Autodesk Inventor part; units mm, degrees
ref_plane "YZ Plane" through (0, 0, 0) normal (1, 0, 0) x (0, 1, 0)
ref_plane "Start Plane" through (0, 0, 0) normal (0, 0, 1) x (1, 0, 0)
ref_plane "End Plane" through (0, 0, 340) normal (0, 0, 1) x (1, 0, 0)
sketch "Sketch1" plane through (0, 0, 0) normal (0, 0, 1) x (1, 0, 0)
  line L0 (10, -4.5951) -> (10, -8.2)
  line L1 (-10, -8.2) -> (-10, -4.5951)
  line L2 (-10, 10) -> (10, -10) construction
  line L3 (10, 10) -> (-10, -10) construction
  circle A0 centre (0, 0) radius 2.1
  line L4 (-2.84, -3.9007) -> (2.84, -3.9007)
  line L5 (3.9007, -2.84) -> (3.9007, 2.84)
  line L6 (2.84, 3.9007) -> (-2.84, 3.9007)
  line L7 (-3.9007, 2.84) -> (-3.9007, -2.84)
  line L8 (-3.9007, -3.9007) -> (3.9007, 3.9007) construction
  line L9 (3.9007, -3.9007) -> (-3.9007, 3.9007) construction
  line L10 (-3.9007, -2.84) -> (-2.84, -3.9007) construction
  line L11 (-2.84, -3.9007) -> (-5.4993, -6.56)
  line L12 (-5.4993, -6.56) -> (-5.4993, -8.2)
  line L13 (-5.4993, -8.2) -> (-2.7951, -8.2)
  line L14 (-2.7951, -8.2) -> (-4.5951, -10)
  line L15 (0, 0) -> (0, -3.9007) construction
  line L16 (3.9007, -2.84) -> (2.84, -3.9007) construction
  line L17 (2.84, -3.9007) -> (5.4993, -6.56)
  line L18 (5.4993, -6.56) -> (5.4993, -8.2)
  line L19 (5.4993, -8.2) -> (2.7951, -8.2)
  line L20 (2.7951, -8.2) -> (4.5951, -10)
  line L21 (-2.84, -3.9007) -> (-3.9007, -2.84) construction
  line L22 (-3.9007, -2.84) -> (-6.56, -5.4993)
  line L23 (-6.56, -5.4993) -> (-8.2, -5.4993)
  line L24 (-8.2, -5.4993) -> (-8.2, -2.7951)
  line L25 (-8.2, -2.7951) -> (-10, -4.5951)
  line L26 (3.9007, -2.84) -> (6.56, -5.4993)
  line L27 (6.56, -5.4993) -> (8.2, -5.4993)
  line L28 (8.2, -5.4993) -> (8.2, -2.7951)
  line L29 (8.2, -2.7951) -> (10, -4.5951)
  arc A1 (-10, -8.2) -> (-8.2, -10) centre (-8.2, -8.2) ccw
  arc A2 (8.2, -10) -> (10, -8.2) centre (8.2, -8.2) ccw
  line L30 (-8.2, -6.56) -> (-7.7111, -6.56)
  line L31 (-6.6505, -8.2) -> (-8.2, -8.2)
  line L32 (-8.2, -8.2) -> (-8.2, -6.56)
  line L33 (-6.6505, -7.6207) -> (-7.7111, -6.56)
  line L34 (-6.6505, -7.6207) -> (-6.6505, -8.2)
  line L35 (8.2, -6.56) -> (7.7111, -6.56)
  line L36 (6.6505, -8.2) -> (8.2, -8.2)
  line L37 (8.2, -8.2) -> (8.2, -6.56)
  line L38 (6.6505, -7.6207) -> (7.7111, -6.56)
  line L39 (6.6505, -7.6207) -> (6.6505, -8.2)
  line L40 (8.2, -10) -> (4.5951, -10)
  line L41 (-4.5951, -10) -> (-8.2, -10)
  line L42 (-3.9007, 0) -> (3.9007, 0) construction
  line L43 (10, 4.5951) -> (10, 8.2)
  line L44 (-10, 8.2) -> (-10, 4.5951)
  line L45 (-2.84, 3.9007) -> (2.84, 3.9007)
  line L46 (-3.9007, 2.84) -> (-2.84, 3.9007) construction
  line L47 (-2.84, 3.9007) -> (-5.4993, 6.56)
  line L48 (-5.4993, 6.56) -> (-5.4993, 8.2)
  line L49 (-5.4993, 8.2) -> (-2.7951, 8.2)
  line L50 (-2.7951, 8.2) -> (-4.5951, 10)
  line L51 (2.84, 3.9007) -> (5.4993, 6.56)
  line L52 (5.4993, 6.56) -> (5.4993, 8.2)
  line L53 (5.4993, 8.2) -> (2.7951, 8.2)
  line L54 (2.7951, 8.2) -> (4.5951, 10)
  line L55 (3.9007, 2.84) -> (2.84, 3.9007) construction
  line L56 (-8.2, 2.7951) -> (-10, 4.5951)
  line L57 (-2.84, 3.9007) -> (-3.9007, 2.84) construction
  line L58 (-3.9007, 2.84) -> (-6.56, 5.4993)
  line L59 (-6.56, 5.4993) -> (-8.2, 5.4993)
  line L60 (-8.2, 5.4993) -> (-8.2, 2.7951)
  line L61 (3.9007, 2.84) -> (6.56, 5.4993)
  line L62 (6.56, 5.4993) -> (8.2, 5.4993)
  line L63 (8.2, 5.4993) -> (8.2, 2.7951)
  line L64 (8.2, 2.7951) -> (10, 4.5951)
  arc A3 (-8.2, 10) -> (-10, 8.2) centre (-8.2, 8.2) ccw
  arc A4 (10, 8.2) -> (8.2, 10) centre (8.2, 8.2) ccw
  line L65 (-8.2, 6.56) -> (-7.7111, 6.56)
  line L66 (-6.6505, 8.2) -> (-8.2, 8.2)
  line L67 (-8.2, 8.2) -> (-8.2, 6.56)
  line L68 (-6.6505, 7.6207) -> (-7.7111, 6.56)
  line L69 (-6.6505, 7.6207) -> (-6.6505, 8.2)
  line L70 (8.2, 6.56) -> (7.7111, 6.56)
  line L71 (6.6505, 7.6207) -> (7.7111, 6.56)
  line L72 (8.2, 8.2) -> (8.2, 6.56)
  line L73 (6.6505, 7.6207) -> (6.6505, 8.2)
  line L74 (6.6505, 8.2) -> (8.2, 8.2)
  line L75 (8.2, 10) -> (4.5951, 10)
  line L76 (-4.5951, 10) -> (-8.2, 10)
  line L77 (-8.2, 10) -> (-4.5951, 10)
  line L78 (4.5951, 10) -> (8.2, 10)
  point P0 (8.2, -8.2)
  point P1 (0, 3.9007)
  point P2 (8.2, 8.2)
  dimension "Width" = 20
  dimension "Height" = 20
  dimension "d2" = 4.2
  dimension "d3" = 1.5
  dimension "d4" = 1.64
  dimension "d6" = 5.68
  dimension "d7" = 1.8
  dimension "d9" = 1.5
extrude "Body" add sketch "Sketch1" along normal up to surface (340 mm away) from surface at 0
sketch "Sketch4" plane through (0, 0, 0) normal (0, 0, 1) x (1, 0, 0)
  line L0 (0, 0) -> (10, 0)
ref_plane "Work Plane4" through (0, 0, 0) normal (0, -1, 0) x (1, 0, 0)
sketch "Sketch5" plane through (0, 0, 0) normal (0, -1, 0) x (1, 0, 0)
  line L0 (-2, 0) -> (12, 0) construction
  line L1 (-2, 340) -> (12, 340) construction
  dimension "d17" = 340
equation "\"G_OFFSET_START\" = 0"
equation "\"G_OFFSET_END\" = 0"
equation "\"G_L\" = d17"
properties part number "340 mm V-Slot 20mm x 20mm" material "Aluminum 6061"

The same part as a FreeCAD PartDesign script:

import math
import FreeCAD as App
import Part
import Sketcher

V = App.Vector
Q = App.Units.Quantity

doc = App.newDocument("Part")
body = doc.addObject("PartDesign::Body", "Body")

# Sketch on XY plane
sketch1 = body.newObject("Sketcher::SketchObject", "Sketch")
sketch1.AttachmentSupport = (doc.getObject("XY_Plane"), [""])
sketch1.MapMode = "FlatFace"
sketch1.addGeometry(Part.LineSegment(V(10, -8.2, 0), V(10, -4.5951, 0)), False)
sketch1.addGeometry(Part.LineSegment(V(10, -4.5951, 0), V(8.2, -2.7951, 0)), False)
sketch1.addGeometry(Part.LineSegment(V(8.2, -2.7951, 0), V(8.2, -5.4993, 0)), False)
sketch1.addGeometry(Part.LineSegment(V(8.2, -5.4993, 0), V(6.56, -5.4993, 0)), False)
sketch1.addGeometry(Part.LineSegment(V(6.56, -5.4993, 0), V(3.9007, -2.84, 0)), False)
sketch1.addGeometry(Part.LineSegment(V(3.9007, -2.84, 0), V(3.9007, 2.84, 0)), False)
sketch1.addGeometry(Part.LineSegment(V(3.9007, 2.84, 0), V(6.56, 5.4993, 0)), False)
sketch1.addGeometry(Part.LineSegment(V(6.56, 5.4993, 0), V(8.2, 5.4993, 0)), False)
sketch1.addGeometry(Part.LineSegment(V(8.2, 5.4993, 0), V(8.2, 2.7951, 0)), False)
sketch1.addGeometry(Part.LineSegment(V(8.2, 2.7951, 0), V(10, 4.5951, 0)), False)
sketch1.addGeometry(Part.LineSegment(V(10, 4.5951, 0), V(10, 8.2, 0)), False)
sketch1.addGeometry(Part.ArcOfCircle(Part.Circle(V(8.2, 8.2, 0), V(0, 0, 1), 1.8), math.radians(0), math.radians(90)), False)
sketch1.addGeometry(Part.LineSegment(V(8.2, 10, 0), V(4.5951, 10, 0)), False)
sketch1.addGeometry(Part.LineSegment(V(4.5951, 10, 0), V(2.7951, 8.2, 0)), False)
sketch1.addGeometry(Part.LineSegment(V(2.7951, 8.2, 0), V(5.4993, 8.2, 0)), False)
sketch1.addGeometry(Part.LineSegment(V(5.4993, 8.2, 0), V(5.4993, 6.56, 0)), False)
sketch1.addGeometry(Part.LineSegment(V(5.4993, 6.56, 0), V(2.84, 3.9007, 0)), False)
sketch1.addGeometry(Part.LineSegment(V(2.84, 3.9007, 0), V(-2.84, 3.9007, 0)), False)
sketch1.addGeometry(Part.LineSegment(V(-2.84, 3.9007, 0), V(-5.4993, 6.56, 0)), False)
sketch1.addGeometry(Part.LineSegment(V(-5.4993, 6.56, 0), V(-5.4993, 8.2, 0)), False)
sketch1.addGeometry(Part.LineSegment(V(-5.4993, 8.2, 0), V(-2.7951, 8.2, 0)), False)
sketch1.addGeometry(Part.LineSegment(V(-2.7951, 8.2, 0), V(-4.5951, 10, 0)), False)
sketch1.addGeometry(Part.LineSegment(V(-4.5951, 10, 0), V(-8.2, 10, 0)), False)
sketch1.addGeometry(Part.ArcOfCircle(Part.Circle(V(-8.2, 8.2, 0), V(0, 0, 1), 1.8), math.radians(90), math.radians(180)), False)
sketch1.addGeometry(Part.LineSegment(V(-10, 8.2, 0), V(-10, 4.5951, 0)), False)
sketch1.addGeometry(Part.LineSegment(V(-10, 4.5951, 0), V(-8.2, 2.7951, 0)), False)
sketch1.addGeometry(Part.LineSegment(V(-8.2, 2.7951, 0), V(-8.2, 5.4993, 0)), False)
sketch1.addGeometry(Part.LineSegment(V(-8.2, 5.4993, 0), V(-6.56, 5.4993, 0)), False)
sketch1.addGeometry(Part.LineSegment(V(-6.56, 5.4993, 0), V(-3.9007, 2.84, 0)), False)
sketch1.addGeometry(Part.LineSegment(V(-3.9007, 2.84, 0), V(-3.9007, -2.84, 0)), False)
sketch1.addGeometry(Part.LineSegment(V(-3.9007, -2.84, 0), V(-6.56, -5.4993, 0)), False)
sketch1.addGeometry(Part.LineSegment(V(-6.56, -5.4993, 0), V(-8.2, -5.4993, 0)), False)
sketch1.addGeometry(Part.LineSegment(V(-8.2, -5.4993, 0), V(-8.2, -2.7951, 0)), False)
sketch1.addGeometry(Part.LineSegment(V(-8.2, -2.7951, 0), V(-10, -4.5951, 0)), False)
sketch1.addGeometry(Part.LineSegment(V(-10, -4.5951, 0), V(-10, -8.2, 0)), False)
sketch1.addGeometry(Part.ArcOfCircle(Part.Circle(V(-8.2, -8.2, 0), V(0, 0, 1), 1.8), math.radians(180), math.radians(270)), False)
sketch1.addGeometry(Part.LineSegment(V(-8.2, -10, 0), V(-4.5951, -10, 0)), False)
sketch1.addGeometry(Part.LineSegment(V(-4.5951, -10, 0), V(-2.7951, -8.2, 0)), False)
sketch1.addGeometry(Part.LineSegment(V(-2.7951, -8.2, 0), V(-5.4993, -8.2, 0)), False)
sketch1.addGeometry(Part.LineSegment(V(-5.4993, -8.2, 0), V(-5.4993, -6.56, 0)), False)
sketch1.addGeometry(Part.LineSegment(V(-5.4993, -6.56, 0), V(-2.84, -3.9007, 0)), False)
sketch1.addGeometry(Part.LineSegment(V(-2.84, -3.9007, 0), V(2.84, -3.9007, 0)), False)
sketch1.addGeometry(Part.LineSegment(V(2.84, -3.9007, 0), V(5.4993, -6.56, 0)), False)
sketch1.addGeometry(Part.LineSegment(V(5.4993, -6.56, 0), V(5.4993, -8.2, 0)), False)
sketch1.addGeometry(Part.LineSegment(V(5.4993, -8.2, 0), V(2.7951, -8.2, 0)), False)
sketch1.addGeometry(Part.LineSegment(V(2.7951, -8.2, 0), V(4.5951, -10, 0)), False)
sketch1.addGeometry(Part.LineSegment(V(4.5951, -10, 0), V(8.2, -10, 0)), False)
sketch1.addGeometry(Part.ArcOfCircle(Part.Circle(V(8.2, -8.2, 0), V(0, 0, 1), 1.8), math.radians(-90), math.radians(0)), False)
sketch1.addGeometry(Part.LineSegment(V(-8.2, -8.2, 0), V(-8.2, -6.56, 0)), False)
sketch1.addGeometry(Part.LineSegment(V(-8.2, -6.56, 0), V(-7.7111, -6.56, 0)), False)
sketch1.addGeometry(Part.LineSegment(V(-7.7111, -6.56, 0), V(-6.6505, -7.6207, 0)), False)
sketch1.addGeometry(Part.LineSegment(V(-6.6505, -7.6207, 0), V(-6.6505, -8.2, 0)), False)
sketch1.addGeometry(Part.LineSegment(V(-6.6505, -8.2, 0), V(-8.2, -8.2, 0)), False)
sketch1.addGeometry(Part.LineSegment(V(7.7111, -6.56, 0), V(8.2, -6.56, 0)), False)
sketch1.addGeometry(Part.LineSegment(V(8.2, -6.56, 0), V(8.2, -8.2, 0)), False)
sketch1.addGeometry(Part.LineSegment(V(8.2, -8.2, 0), V(6.6505, -8.2, 0)), False)
sketch1.addGeometry(Part.LineSegment(V(6.6505, -8.2, 0), V(6.6505, -7.6207, 0)), False)
sketch1.addGeometry(Part.LineSegment(V(6.6505, -7.6207, 0), V(7.7111, -6.56, 0)), False)
sketch1.addGeometry(Part.LineSegment(V(-7.7111, 6.56, 0), V(-8.2, 6.56, 0)), False)
sketch1.addGeometry(Part.LineSegment(V(-8.2, 6.56, 0), V(-8.2, 8.2, 0)), False)
sketch1.addGeometry(Part.LineSegment(V(-8.2, 8.2, 0), V(-6.6505, 8.2, 0)), False)
sketch1.addGeometry(Part.LineSegment(V(-6.6505, 8.2, 0), V(-6.6505, 7.6207, 0)), False)
sketch1.addGeometry(Part.LineSegment(V(-6.6505, 7.6207, 0), V(-7.7111, 6.56, 0)), False)
sketch1.addGeometry(Part.Circle(V(0, 0, 0), V(0, 0, 1), 2.1), False)
sketch1.addGeometry(Part.LineSegment(V(8.2, 8.2, 0), V(8.2, 6.56, 0)), False)
sketch1.addGeometry(Part.LineSegment(V(8.2, 6.56, 0), V(7.7111, 6.56, 0)), False)
sketch1.addGeometry(Part.LineSegment(V(7.7111, 6.56, 0), V(6.6505, 7.6207, 0)), False)
sketch1.addGeometry(Part.LineSegment(V(6.6505, 7.6207, 0), V(6.6505, 8.2, 0)), False)
sketch1.addGeometry(Part.LineSegment(V(6.6505, 8.2, 0), V(8.2, 8.2, 0)), False)
sketch1.addConstraint(Sketcher.Constraint("Coincident", 0, 2, 1, 1))
sketch1.addConstraint(Sketcher.Constraint("Coincident", 1, 2, 2, 1))
sketch1.addConstraint(Sketcher.Constraint("Coincident", 2, 2, 3, 1))
sketch1.addConstraint(Sketcher.Constraint("Coincident", 3, 2, 4, 1))
sketch1.addConstraint(Sketcher.Constraint("Coincident", 4, 2, 5, 1))
sketch1.addConstraint(Sketcher.Constraint("Coincident", 5, 2, 6, 1))
sketch1.addConstraint(Sketcher.Constraint("Coincident", 6, 2, 7, 1))
sketch1.addConstraint(Sketcher.Constraint("Coincident", 7, 2, 8, 1))
sketch1.addConstraint(Sketcher.Constraint("Coincident", 8, 2, 9, 1))
sketch1.addConstraint(Sketcher.Constraint("Coincident", 9, 2, 10, 1))
sketch1.addConstraint(Sketcher.Constraint("Tangent", 10, 2, 11, 1))
sketch1.addConstraint(Sketcher.Constraint("Tangent", 11, 2, 12, 1))
sketch1.addConstraint(Sketcher.Constraint("Coincident", 12, 2, 13, 1))
sketch1.addConstraint(Sketcher.Constraint("Coincident", 13, 2, 14, 1))
sketch1.addConstraint(Sketcher.Constraint("Coincident", 14, 2, 15, 1))
sketch1.addConstraint(Sketcher.Constraint("Coincident", 15, 2, 16, 1))
sketch1.addConstraint(Sketcher.Constraint("Coincident", 16, 2, 17, 1))
sketch1.addConstraint(Sketcher.Constraint("Coincident", 17, 2, 18, 1))
sketch1.addConstraint(Sketcher.Constraint("Coincident", 18, 2, 19, 1))
sketch1.addConstraint(Sketcher.Constraint("Coincident", 19, 2, 20, 1))
sketch1.addConstraint(Sketcher.Constraint("Coincident", 20, 2, 21, 1))
sketch1.addConstraint(Sketcher.Constraint("Coincident", 21, 2, 22, 1))
sketch1.addConstraint(Sketcher.Constraint("Tangent", 22, 2, 23, 1))
sketch1.addConstraint(Sketcher.Constraint("Tangent", 23, 2, 24, 1))
sketch1.addConstraint(Sketcher.Constraint("Coincident", 24, 2, 25, 1))
sketch1.addConstraint(Sketcher.Constraint("Coincident", 25, 2, 26, 1))
sketch1.addConstraint(Sketcher.Constraint("Coincident", 26, 2, 27, 1))
sketch1.addConstraint(Sketcher.Constraint("Coincident", 27, 2, 28, 1))
sketch1.addConstraint(Sketcher.Constraint("Coincident", 28, 2, 29, 1))
sketch1.addConstraint(Sketcher.Constraint("Coincident", 29, 2, 30, 1))
sketch1.addConstraint(Sketcher.Constraint("Coincident", 30, 2, 31, 1))
sketch1.addConstraint(Sketcher.Constraint("Coincident", 31, 2, 32, 1))
sketch1.addConstraint(Sketcher.Constraint("Coincident", 32, 2, 33, 1))
sketch1.addConstraint(Sketcher.Constraint("Coincident", 33, 2, 34, 1))
sketch1.addConstraint(Sketcher.Constraint("Tangent", 34, 2, 35, 1))
sketch1.addConstraint(Sketcher.Constraint("Tangent", 35, 2, 36, 1))
sketch1.addConstraint(Sketcher.Constraint("Coincident", 36, 2, 37, 1))
sketch1.addConstraint(Sketcher.Constraint("Coincident", 37, 2, 38, 1))
sketch1.addConstraint(Sketcher.Constraint("Coincident", 38, 2, 39, 1))
sketch1.addConstraint(Sketcher.Constraint("Coincident", 39, 2, 40, 1))
sketch1.addConstraint(Sketcher.Constraint("Coincident", 40, 2, 41, 1))
sketch1.addConstraint(Sketcher.Constraint("Coincident", 41, 2, 42, 1))
sketch1.addConstraint(Sketcher.Constraint("Coincident", 42, 2, 43, 1))
sketch1.addConstraint(Sketcher.Constraint("Coincident", 43, 2, 44, 1))
sketch1.addConstraint(Sketcher.Constraint("Coincident", 44, 2, 45, 1))
sketch1.addConstraint(Sketcher.Constraint("Coincident", 45, 2, 46, 1))
sketch1.addConstraint(Sketcher.Constraint("Tangent", 46, 2, 47, 1))
sketch1.addConstraint(Sketcher.Constraint("Tangent", 47, 2, 0, 1))
sketch1.addConstraint(Sketcher.Constraint("Coincident", 48, 2, 49, 1))
sketch1.addConstraint(Sketcher.Constraint("Coincident", 49, 2, 50, 1))
sketch1.addConstraint(Sketcher.Constraint("Coincident", 50, 2, 51, 1))
sketch1.addConstraint(Sketcher.Constraint("Coincident", 51, 2, 52, 1))
sketch1.addConstraint(Sketcher.Constraint("Coincident", 52, 2, 48, 1))
sketch1.addConstraint(Sketcher.Constraint("Coincident", 53, 2, 54, 1))
sketch1.addConstraint(Sketcher.Constraint("Coincident", 54, 2, 55, 1))
sketch1.addConstraint(Sketcher.Constraint("Coincident", 55, 2, 56, 1))
sketch1.addConstraint(Sketcher.Constraint("Coincident", 56, 2, 57, 1))
sketch1.addConstraint(Sketcher.Constraint("Coincident", 57, 2, 53, 1))
sketch1.addConstraint(Sketcher.Constraint("Coincident", 58, 2, 59, 1))
sketch1.addConstraint(Sketcher.Constraint("Coincident", 59, 2, 60, 1))
sketch1.addConstraint(Sketcher.Constraint("Coincident", 60, 2, 61, 1))
sketch1.addConstraint(Sketcher.Constraint("Coincident", 61, 2, 62, 1))
sketch1.addConstraint(Sketcher.Constraint("Coincident", 62, 2, 58, 1))
sketch1.addConstraint(Sketcher.Constraint("Coincident", 64, 2, 65, 1))
sketch1.addConstraint(Sketcher.Constraint("Coincident", 65, 2, 66, 1))
sketch1.addConstraint(Sketcher.Constraint("Coincident", 66, 2, 67, 1))
sketch1.addConstraint(Sketcher.Constraint("Coincident", 67, 2, 68, 1))
sketch1.addConstraint(Sketcher.Constraint("Coincident", 68, 2, 64, 1))
sketch1.addConstraint(Sketcher.Constraint("Vertical", 0))
sketch1.addConstraint(Sketcher.Constraint("Vertical", 2))
sketch1.addConstraint(Sketcher.Constraint("Horizontal", 3))
sketch1.addConstraint(Sketcher.Constraint("Vertical", 5))
sketch1.addConstraint(Sketcher.Constraint("Horizontal", 7))
sketch1.addConstraint(Sketcher.Constraint("Vertical", 8))
sketch1.addConstraint(Sketcher.Constraint("Vertical", 10))
sketch1.addConstraint(Sketcher.Constraint("Horizontal", 12))
sketch1.addConstraint(Sketcher.Constraint("Horizontal", 14))
sketch1.addConstraint(Sketcher.Constraint("Vertical", 15))
sketch1.addConstraint(Sketcher.Constraint("Horizontal", 17))
sketch1.addConstraint(Sketcher.Constraint("Vertical", 19))
sketch1.addConstraint(Sketcher.Constraint("Horizontal", 20))
sketch1.addConstraint(Sketcher.Constraint("Horizontal", 22))
sketch1.addConstraint(Sketcher.Constraint("Vertical", 24))
sketch1.addConstraint(Sketcher.Constraint("Vertical", 26))
sketch1.addConstraint(Sketcher.Constraint("Horizontal", 27))
sketch1.addConstraint(Sketcher.Constraint("Vertical", 29))
sketch1.addConstraint(Sketcher.Constraint("Horizontal", 31))
sketch1.addConstraint(Sketcher.Constraint("Vertical", 32))
sketch1.addConstraint(Sketcher.Constraint("Vertical", 34))
sketch1.addConstraint(Sketcher.Constraint("Horizontal", 36))
sketch1.addConstraint(Sketcher.Constraint("Horizontal", 38))
sketch1.addConstraint(Sketcher.Constraint("Vertical", 39))
sketch1.addConstraint(Sketcher.Constraint("Horizontal", 41))
sketch1.addConstraint(Sketcher.Constraint("Vertical", 43))
sketch1.addConstraint(Sketcher.Constraint("Horizontal", 44))
sketch1.addConstraint(Sketcher.Constraint("Horizontal", 46))
sketch1.addConstraint(Sketcher.Constraint("Vertical", 48))
sketch1.addConstraint(Sketcher.Constraint("Horizontal", 49))
sketch1.addConstraint(Sketcher.Constraint("Vertical", 51))
sketch1.addConstraint(Sketcher.Constraint("Horizontal", 52))
sketch1.addConstraint(Sketcher.Constraint("Horizontal", 53))
sketch1.addConstraint(Sketcher.Constraint("Vertical", 54))
sketch1.addConstraint(Sketcher.Constraint("Horizontal", 55))
sketch1.addConstraint(Sketcher.Constraint("Vertical", 56))
sketch1.addConstraint(Sketcher.Constraint("Horizontal", 58))
sketch1.addConstraint(Sketcher.Constraint("Vertical", 59))
sketch1.addConstraint(Sketcher.Constraint("Horizontal", 60))
sketch1.addConstraint(Sketcher.Constraint("Vertical", 61))
sketch1.addConstraint(Sketcher.Constraint("Vertical", 64))
sketch1.addConstraint(Sketcher.Constraint("Horizontal", 65))
sketch1.addConstraint(Sketcher.Constraint("Vertical", 67))
sketch1.addConstraint(Sketcher.Constraint("Horizontal", 68))
sketch1.addConstraint(Sketcher.Constraint("Coincident", 63, 3, -1, 1))
sketch1.addConstraint(Sketcher.Constraint("Coincident", 52, 2, 35, 3))
sketch1.addConstraint(Sketcher.Constraint("Coincident", 54, 2, 47, 3))
sketch1.addConstraint(Sketcher.Constraint("Coincident", 59, 2, 23, 3))
sketch1.addConstraint(Sketcher.Constraint("Coincident", 68, 2, 11, 3))
sketch1.addConstraint(Sketcher.Constraint("Equal", 11, 23))
sketch1.addConstraint(Sketcher.Constraint("Equal", 23, 35))
sketch1.addConstraint(Sketcher.Constraint("Equal", 35, 47))
sketch1.addConstraint(Sketcher.Constraint("Symmetric", 11, 3, 35, 3, -1, 1))
sketch1.addConstraint(Sketcher.Constraint("Symmetric", 23, 3, 47, 3, -1, 1))
sketch1.addConstraint(Sketcher.Constraint("Symmetric", 1, 2, 25, 2, -1, 1))
sketch1.addConstraint(Sketcher.Constraint("Symmetric", 3, 2, 27, 2, -1, 1))
sketch1.addConstraint(Sketcher.Constraint("Symmetric", 4, 2, 28, 2, -1, 1))
sketch1.addConstraint(Sketcher.Constraint("Symmetric", 6, 2, 30, 2, -1, 1))
sketch1.addConstraint(Sketcher.Constraint("Symmetric", 8, 2, 32, 2, -1, 1))
sketch1.addConstraint(Sketcher.Constraint("Symmetric", 13, 2, 37, 2, -1, 1))
sketch1.addConstraint(Sketcher.Constraint("Symmetric", 15, 2, 39, 2, -1, 1))
sketch1.addConstraint(Sketcher.Constraint("Symmetric", 16, 2, 40, 2, -1, 1))
sketch1.addConstraint(Sketcher.Constraint("Symmetric", 18, 2, 42, 2, -1, 1))
sketch1.addConstraint(Sketcher.Constraint("Symmetric", 20, 2, 44, 2, -1, 1))
sketch1.addConstraint(Sketcher.Constraint("Symmetric", 56, 2, 61, 2, -1, 1))
sketch1.addConstraint(Sketcher.Constraint("Symmetric", 57, 2, 62, 2, -1, 1))
sketch1.addConstraint(Sketcher.Constraint("Symmetric", 49, 2, 65, 2, -1, 1))
sketch1.addConstraint(Sketcher.Constraint("Symmetric", 50, 2, 66, 2, -1, 1))
sketch1.addConstraint(Sketcher.Constraint("Symmetric", 11, 3, 23, 3, -2))
sketch1.addConstraint(Sketcher.Constraint("Symmetric", 15, 2, 18, 2, -2))
sketch1.addConstraint(Sketcher.Constraint("Symmetric", 13, 2, 20, 2, -2))
sketch1.addConstraint(Sketcher.Constraint("Symmetric", 8, 2, 25, 2, -2))
sketch1.addConstraint(Sketcher.Constraint("Symmetric", 6, 2, 27, 2, -2))
sketch1.addConstraint(Sketcher.Constraint("Symmetric", 50, 2, 56, 2, -2))
sketch1.addConstraint(Sketcher.Constraint("Symmetric", 49, 2, 57, 2, -2))
sketch1.addConstraint(Sketcher.Constraint("Parallel", 1, 4))
sketch1.addConstraint(Sketcher.Constraint("Perpendicular", 4, 6))
sketch1.addConstraint(Sketcher.Constraint("Parallel", 6, 9))
sketch1.addConstraint(Sketcher.Constraint("Parallel", 9, 13))
sketch1.addConstraint(Sketcher.Constraint("Parallel", 13, 16))
sketch1.addConstraint(Sketcher.Constraint("Perpendicular", 16, 18))
sketch1.addConstraint(Sketcher.Constraint("Parallel", 18, 21))
sketch1.addConstraint(Sketcher.Constraint("Parallel", 21, 25))
sketch1.addConstraint(Sketcher.Constraint("Perpendicular", 28, 30))
sketch1.addConstraint(Sketcher.Constraint("Parallel", 30, 33))
sketch1.addConstraint(Sketcher.Constraint("Parallel", 33, 37))
sketch1.addConstraint(Sketcher.Constraint("Perpendicular", 40, 42))
sketch1.addConstraint(Sketcher.Constraint("Parallel", 42, 45))
sketch1.addConstraint(Sketcher.Constraint("Parallel", 45, 50))
sketch1.addConstraint(Sketcher.Constraint("Perpendicular", 50, 57))
sketch1.addConstraint(Sketcher.Constraint("Horizontal", 10, 2, 13, 2))
sketch1.addConstraint(Sketcher.Constraint("Horizontal", 42, 2, 48, 2))
sketch1.addConstraint(Sketcher.Constraint("Vertical", 47, 3, 1, 2))
sketch1.addConstraint(Sketcher.Constraint("Equal", 46, 0))
sketch1.addConstraint(Sketcher.Constraint("Equal", 44, 2))
sketch1.addConstraint(Sketcher.Constraint("Equal", 41, 5))
sketch1.addConstraint(Sketcher.Constraint("Equal", 31, 15))
sketch1.addConstraint(Sketcher.Constraint("Equal", 6, 16))
sketch1.addConstraint(Sketcher.Constraint("Diameter", 63, Q("4.2 mm")))
sketch1.addConstraint(Sketcher.Constraint("Radius", 11, Q("1.8 mm")))
sketch1.addConstraint(Sketcher.Constraint("Distance", 50, Q("1.5 mm")))
sketch1.addConstraint(Sketcher.Constraint("DistanceX", 3, 2, 3, 1, Q("1.64 mm")))
sketch1.addConstraint(Sketcher.Constraint("DistanceX", 17, 2, 17, 1, Q("5.68 mm")))
sketch1.addConstraint(Sketcher.Constraint("DistanceX", -1, 1, 0, 2, Q("10 mm")))
sketch1.addConstraint(Sketcher.Constraint("DistanceX", 12, 2, 12, 1, Q("3.605 mm")))
sketch1.addConstraint(Sketcher.Constraint("DistanceX", 49, 1, 49, 2, Q("0.489 mm")))
sketch1.addConstraint(Sketcher.Constraint("DistanceX", 14, 1, 14, 2, Q("2.7042 mm")))
pad1 = body.newObject("PartDesign::Pad", "Pad")
pad1.Profile = sketch1
pad1.Length = 340

doc.recompute()
